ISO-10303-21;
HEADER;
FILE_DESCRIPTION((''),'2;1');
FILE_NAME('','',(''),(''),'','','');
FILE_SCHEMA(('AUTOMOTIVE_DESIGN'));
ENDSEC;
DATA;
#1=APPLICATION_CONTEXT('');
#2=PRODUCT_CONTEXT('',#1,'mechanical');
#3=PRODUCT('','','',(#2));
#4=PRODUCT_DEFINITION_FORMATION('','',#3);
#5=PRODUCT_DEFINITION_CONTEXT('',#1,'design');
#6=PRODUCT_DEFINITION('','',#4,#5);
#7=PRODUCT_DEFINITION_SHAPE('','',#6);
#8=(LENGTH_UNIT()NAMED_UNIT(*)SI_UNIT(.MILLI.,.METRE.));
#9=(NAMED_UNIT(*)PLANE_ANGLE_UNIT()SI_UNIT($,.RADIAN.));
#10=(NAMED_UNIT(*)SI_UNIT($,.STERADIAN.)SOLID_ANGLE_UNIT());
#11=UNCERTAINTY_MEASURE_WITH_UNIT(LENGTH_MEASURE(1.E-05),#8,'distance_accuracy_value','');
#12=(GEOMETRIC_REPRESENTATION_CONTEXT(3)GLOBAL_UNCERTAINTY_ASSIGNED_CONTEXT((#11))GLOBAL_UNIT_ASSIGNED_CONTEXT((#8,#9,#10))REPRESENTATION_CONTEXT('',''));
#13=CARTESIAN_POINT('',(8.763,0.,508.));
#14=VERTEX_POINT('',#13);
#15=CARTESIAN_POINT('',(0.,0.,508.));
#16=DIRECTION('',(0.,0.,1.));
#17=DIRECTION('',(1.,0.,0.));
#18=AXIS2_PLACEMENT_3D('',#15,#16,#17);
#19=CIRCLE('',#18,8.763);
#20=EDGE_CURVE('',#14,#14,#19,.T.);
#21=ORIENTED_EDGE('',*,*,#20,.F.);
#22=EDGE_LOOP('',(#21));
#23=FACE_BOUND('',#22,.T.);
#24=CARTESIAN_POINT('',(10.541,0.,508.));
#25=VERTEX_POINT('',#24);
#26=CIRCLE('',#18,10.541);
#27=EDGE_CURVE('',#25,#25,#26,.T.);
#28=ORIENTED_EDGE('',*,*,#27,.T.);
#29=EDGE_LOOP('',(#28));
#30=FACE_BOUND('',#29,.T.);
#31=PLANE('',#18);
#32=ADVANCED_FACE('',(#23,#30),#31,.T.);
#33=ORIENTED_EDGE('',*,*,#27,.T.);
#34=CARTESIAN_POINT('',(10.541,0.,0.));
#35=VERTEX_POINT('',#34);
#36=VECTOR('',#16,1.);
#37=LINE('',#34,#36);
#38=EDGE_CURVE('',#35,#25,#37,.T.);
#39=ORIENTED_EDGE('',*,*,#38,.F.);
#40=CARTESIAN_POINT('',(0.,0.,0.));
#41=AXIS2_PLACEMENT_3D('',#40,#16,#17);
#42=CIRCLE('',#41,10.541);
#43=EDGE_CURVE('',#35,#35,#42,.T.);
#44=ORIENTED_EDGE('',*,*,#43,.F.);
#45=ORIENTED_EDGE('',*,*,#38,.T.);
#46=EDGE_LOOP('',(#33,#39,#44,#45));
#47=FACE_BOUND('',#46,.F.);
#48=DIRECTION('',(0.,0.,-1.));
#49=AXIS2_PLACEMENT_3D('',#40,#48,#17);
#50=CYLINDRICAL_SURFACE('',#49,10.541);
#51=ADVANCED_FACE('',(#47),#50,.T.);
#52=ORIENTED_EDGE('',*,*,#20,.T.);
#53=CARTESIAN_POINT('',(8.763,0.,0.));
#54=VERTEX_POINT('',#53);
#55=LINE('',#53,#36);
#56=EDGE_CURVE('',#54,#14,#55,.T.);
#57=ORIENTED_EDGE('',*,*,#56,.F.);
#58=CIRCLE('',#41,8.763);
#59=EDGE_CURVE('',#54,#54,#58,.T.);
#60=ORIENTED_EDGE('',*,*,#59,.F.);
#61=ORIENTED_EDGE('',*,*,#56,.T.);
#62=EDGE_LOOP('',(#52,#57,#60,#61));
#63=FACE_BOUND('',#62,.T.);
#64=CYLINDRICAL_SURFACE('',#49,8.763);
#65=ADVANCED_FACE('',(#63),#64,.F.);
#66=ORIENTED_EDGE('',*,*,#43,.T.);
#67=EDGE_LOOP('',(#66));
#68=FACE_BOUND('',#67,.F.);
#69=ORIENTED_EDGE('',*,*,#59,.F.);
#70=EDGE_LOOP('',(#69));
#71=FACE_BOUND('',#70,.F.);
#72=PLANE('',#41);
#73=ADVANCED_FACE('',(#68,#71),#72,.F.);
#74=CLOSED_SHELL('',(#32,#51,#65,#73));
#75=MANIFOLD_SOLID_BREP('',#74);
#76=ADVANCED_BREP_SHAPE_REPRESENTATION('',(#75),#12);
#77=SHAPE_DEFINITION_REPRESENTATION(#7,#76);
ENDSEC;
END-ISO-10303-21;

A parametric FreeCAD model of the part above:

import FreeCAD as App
import Part
import Sketcher
from FreeCAD import Vector
Q = App.Units.Quantity

doc = App.newDocument("Part")
params = doc.addObject("Spreadsheet::Sheet", "Params")
for row, (alias, value) in enumerate([
    ("sketch1_diameter", "0.69 in"),
    ("sketch1_diameter2", "0.83 in"),
    ("pad1_length", "20 in"),
], start=1):
    params.set(f"A{row}", alias)
    params.set(f"B{row}", "=" + value)
    params.setAlias(f"B{row}", alias)

body = doc.addObject("PartDesign::Body", "Body")

sketch1 = body.newObject("Sketcher::SketchObject", "Sketch")
sketch1.AttachmentSupport = (doc.getObject("XY_Plane"), [""])
sketch1.MapMode = "FlatFace"
sketch1.addGeometry(Part.Circle(Vector(0, 0, 0), Vector(0, 0, 1), 11), False)
sketch1.addGeometry(Part.Circle(Vector(0, 0, 0), Vector(0, 0, 1), 9), False)
sketch1.addConstraint(Sketcher.Constraint("Coincident", 0, 3, -1, 1))
sketch1.addConstraint(Sketcher.Constraint("Coincident", 1, 3, -1, 1))
sketch1.addConstraint(Sketcher.Constraint("Diameter", 1, Q("0.69 in")))
sketch1.addConstraint(Sketcher.Constraint("Diameter", 0, Q("0.83 in")))
sketch1.setExpression("Constraints[2]", "Params.sketch1_diameter")
sketch1.setExpression("Constraints[3]", "Params.sketch1_diameter2")
pad1 = body.newObject("PartDesign::Pad", "Pad")
pad1.Profile = sketch1
pad1.setExpression("Length", "Params.pad1_length")

doc.recompute()
